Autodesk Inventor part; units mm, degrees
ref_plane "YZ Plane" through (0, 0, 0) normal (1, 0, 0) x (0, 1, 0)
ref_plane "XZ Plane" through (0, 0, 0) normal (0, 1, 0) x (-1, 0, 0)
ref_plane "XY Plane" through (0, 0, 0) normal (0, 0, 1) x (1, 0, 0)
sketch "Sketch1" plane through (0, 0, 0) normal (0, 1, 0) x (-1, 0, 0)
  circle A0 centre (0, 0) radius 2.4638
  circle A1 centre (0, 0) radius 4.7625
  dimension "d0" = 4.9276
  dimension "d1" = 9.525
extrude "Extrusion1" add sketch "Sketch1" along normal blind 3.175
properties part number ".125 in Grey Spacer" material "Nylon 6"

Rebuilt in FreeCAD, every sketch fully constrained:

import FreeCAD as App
import Part
import Sketcher
from FreeCAD import Vector
Q = App.Units.Quantity

doc = App.newDocument("Part")
params = doc.addObject("Spreadsheet::Sheet", "Params")
for row, (alias, value) in enumerate([
    ("sketch1_diameter", "0.375 in"),
    ("sketch1_diameter2", "0.194 in"),
    ("pad1_length", "0.125 in"),
], start=1):
    params.set(f"A{row}", alias)
    params.set(f"B{row}", "=" + value)
    params.setAlias(f"B{row}", alias)

body = doc.addObject("PartDesign::Body", "Body")

# Sketch on XZ plane
sketch1 = body.newObject("Sketcher::SketchObject", "Sketch")
sketch1.AttachmentSupport = (doc.getObject("XZ_Plane"), [""])
sketch1.MapMode = "FlatFace"
sketch1.addGeometry([
    Part.Circle(Vector(0, 0, 0), Vector(0, 0, 1), 4.8),
    Part.Circle(Vector(0, 0, 0), Vector(0, 0, 1), 2.5),
], False)
sketch1.addConstraint([
    Sketcher.Constraint("Coincident", 0, 3, -1, 1),
    Sketcher.Constraint("Coincident", 1, 3, -1, 1),
    Sketcher.Constraint("Diameter", 0, Q("0.375 in")),
    Sketcher.Constraint("Diameter", 1, Q("0.194 in")),
])
sketch1.setExpression("Constraints[2]", "Params.sketch1_diameter")
sketch1.setExpression("Constraints[3]", "Params.sketch1_diameter2")
pad1 = body.newObject("PartDesign::Pad", "Pad")
pad1.Profile = sketch1
pad1.setExpression("Length", "Params.pad1_length")
pad1.Reversed = True

doc.recompute()
